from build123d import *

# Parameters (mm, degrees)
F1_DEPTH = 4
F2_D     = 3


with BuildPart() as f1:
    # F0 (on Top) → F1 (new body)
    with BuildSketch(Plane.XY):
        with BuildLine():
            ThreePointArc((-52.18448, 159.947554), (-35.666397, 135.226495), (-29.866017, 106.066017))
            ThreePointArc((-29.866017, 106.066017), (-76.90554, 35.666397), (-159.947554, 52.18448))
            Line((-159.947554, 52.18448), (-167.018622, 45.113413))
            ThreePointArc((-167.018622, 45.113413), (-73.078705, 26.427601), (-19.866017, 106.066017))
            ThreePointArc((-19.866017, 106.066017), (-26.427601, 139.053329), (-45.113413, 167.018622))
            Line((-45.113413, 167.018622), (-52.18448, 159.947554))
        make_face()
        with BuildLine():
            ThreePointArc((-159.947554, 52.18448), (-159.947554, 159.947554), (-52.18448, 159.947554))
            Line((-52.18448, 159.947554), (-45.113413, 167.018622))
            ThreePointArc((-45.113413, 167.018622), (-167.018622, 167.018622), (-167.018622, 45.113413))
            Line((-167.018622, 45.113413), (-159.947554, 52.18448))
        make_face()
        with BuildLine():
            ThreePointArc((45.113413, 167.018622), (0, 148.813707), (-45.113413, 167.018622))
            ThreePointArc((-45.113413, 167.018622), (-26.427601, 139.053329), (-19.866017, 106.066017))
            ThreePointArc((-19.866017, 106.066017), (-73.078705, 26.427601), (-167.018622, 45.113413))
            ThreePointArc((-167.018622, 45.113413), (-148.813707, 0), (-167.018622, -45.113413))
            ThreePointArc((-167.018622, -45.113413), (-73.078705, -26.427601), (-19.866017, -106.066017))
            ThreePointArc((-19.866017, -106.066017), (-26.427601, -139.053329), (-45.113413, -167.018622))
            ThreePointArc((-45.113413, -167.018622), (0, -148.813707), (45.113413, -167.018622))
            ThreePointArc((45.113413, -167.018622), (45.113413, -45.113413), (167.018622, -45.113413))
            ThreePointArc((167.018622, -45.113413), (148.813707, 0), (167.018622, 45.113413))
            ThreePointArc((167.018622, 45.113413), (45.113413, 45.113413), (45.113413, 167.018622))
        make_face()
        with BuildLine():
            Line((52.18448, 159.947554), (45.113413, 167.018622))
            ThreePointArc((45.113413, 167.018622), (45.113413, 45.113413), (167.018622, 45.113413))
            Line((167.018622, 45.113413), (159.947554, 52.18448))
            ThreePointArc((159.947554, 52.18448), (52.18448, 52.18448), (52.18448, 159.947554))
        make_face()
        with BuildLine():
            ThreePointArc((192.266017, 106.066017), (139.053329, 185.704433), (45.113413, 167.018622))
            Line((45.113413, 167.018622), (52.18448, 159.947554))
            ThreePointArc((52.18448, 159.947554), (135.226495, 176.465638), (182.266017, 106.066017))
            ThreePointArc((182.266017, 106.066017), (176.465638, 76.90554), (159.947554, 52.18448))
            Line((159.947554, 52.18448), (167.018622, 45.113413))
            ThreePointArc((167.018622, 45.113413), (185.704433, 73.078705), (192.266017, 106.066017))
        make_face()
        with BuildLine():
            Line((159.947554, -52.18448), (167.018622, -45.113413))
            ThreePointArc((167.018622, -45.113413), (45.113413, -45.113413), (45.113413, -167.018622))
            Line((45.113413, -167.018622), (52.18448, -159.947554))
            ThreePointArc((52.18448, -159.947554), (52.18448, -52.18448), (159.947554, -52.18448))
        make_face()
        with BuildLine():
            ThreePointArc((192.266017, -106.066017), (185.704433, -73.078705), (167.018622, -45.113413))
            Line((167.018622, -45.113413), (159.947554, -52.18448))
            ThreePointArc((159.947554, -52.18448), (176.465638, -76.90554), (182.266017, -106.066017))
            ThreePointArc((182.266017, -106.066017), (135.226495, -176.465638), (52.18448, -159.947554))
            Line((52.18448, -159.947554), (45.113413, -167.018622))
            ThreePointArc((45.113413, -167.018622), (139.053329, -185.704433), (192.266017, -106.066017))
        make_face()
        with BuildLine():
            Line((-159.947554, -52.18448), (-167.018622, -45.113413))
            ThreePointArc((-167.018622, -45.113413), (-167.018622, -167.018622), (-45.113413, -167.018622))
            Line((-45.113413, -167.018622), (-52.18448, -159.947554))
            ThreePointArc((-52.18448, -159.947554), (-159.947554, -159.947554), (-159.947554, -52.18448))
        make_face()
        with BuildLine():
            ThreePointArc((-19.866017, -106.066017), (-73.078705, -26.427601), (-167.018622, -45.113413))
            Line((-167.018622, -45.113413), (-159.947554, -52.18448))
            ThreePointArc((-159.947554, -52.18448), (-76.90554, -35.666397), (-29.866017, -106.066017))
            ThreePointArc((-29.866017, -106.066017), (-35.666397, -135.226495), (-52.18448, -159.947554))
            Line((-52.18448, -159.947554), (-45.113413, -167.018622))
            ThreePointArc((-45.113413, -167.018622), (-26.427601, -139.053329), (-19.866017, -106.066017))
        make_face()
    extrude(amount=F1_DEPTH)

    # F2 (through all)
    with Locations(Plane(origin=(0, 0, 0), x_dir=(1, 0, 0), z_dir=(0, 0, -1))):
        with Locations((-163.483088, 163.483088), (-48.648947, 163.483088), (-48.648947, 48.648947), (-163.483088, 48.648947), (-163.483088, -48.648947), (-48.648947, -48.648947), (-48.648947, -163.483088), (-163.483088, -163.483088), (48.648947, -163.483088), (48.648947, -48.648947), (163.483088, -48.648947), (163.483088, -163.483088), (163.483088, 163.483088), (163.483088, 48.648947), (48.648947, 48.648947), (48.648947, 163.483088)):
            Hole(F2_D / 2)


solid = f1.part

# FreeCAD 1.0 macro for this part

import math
import FreeCAD as App
import Part
import Sketcher
Q = App.Units.Quantity

doc = App.newDocument("Part")
body = doc.addObject("PartDesign::Body", "Body")

sketch1 = body.newObject("Sketcher::SketchObject", "Sketch")
sketch1.AttachmentSupport = (doc.getObject("XY_Plane"), [""])
sketch1.MapMode = "FlatFace"
sketch1.addGeometry([
    Part.ArcOfCircle(Part.Circle(App.Vector(-106.066018, 106.066018, 0), App.Vector(0, 0, 1), 86.2), math.radians(45), math.radians(225)),
    Part.ArcOfCircle(Part.Circle(App.Vector(-213.813707, 0, 0), App.Vector(0, 0, 1), 65), math.radians(-43.951762), math.radians(43.951762)),
    Part.ArcOfCircle(Part.Circle(App.Vector(-106.066018, -106.066018, 0), App.Vector(0, 0, 1), 86.2), math.radians(135), math.radians(315)),
    Part.ArcOfCircle(Part.Circle(App.Vector(0, -213.813707, 0), App.Vector(0, 0, 1), 65), math.radians(46.048238), math.radians(133.951762)),
    Part.ArcOfCircle(Part.Circle(App.Vector(106.066017, -106.066018, 0), App.Vector(0, 0, 1), 86.2), math.radians(-135), math.radians(0)),
    Part.ArcOfCircle(Part.Circle(App.Vector(106.066021, -106.066015, 0), App.Vector(0, 0, 1), 86.199996), math.radians(-0.000001), math.radians(45.000001)),
    Part.ArcOfCircle(Part.Circle(App.Vector(213.813707, 0, 0), App.Vector(0, 0, 1), 65), math.radians(136.048238), math.radians(223.951762)),
    Part.ArcOfCircle(Part.Circle(App.Vector(106.066021, 106.066015, 0), App.Vector(0, 0, 1), 86.199996), math.radians(-45.000001), math.radians(0.000001)),
    Part.ArcOfCircle(Part.Circle(App.Vector(106.066017, 106.066018, 0), App.Vector(0, 0, 1), 86.2), math.radians(0), math.radians(135)),
    Part.ArcOfCircle(Part.Circle(App.Vector(0, 213.813707, 0), App.Vector(0, 0, 1), 65), math.radians(-133.951762), math.radians(-46.048238)),
    Part.ArcOfCircle(Part.Circle(App.Vector(-106.066022, 106.066016, 0), App.Vector(0, 0, 1), 76.200005), math.radians(0.000001), math.radians(44.999998)),
    Part.ArcOfCircle(Part.Circle(App.Vector(-106.066018, 106.066018, 0), App.Vector(0, 0, 1), 76.200001), math.radians(-134.999999), math.radians(-0.000001)),
    Part.ArcOfCircle(Part.Circle(App.Vector(-106.066017, 106.066017, 0), App.Vector(0, 0, 1), 76.2), math.radians(45), math.radians(225)),
    Part.ArcOfCircle(Part.Circle(App.Vector(106.066017, -106.066017, 0), App.Vector(0, 0, 1), 76.2), math.radians(45), math.radians(225)),
    Part.ArcOfCircle(Part.Circle(App.Vector(106.066019, -106.066016, 0), App.Vector(0, 0, 1), 76.199998), math.radians(-0.000001), math.radians(45)),
    Part.ArcOfCircle(Part.Circle(App.Vector(106.066017, -106.066018, 0), App.Vector(0, 0, 1), 76.2), math.radians(-135.000001), math.radians(0.000001)),
    Part.ArcOfCircle(Part.Circle(App.Vector(106.066017, 106.066017, 0), App.Vector(0, 0, 1), 76.2), math.radians(135), math.radians(315)),
    Part.ArcOfCircle(Part.Circle(App.Vector(106.066017, 106.066018, 0), App.Vector(0, 0, 1), 76.2), math.radians(-0.000001), math.radians(135.000001)),
    Part.ArcOfCircle(Part.Circle(App.Vector(106.066019, 106.066016, 0), App.Vector(0, 0, 1), 76.199998), math.radians(-45), math.radians(0.000001)),
    Part.ArcOfCircle(Part.Circle(App.Vector(-106.066018, -106.066018, 0), App.Vector(0, 0, 1), 76.200001), math.radians(0.000001), math.radians(134.999999)),
    Part.ArcOfCircle(Part.Circle(App.Vector(-106.066022, -106.066016, 0), App.Vector(0, 0, 1), 76.200005), math.radians(-44.999998), math.radians(-0.000001)),
    Part.ArcOfCircle(Part.Circle(App.Vector(-106.066017, -106.066017, 0), App.Vector(0, 0, 1), 76.2), math.radians(135), math.radians(315)),
], False)
sketch1.addConstraint([
    Sketcher.Constraint("Coincident", 0, 2, 1, 2),
    Sketcher.Constraint("Coincident", 1, 1, 2, 1),
    Sketcher.Constraint("Coincident", 2, 2, 3, 2),
    Sketcher.Constraint("Coincident", 3, 1, 4, 1),
    Sketcher.Constraint("Tangent", 4, 2, 5, 1),
    Sketcher.Constraint("Coincident", 5, 2, 6, 2),
    Sketcher.Constraint("Coincident", 6, 1, 7, 1),
    Sketcher.Constraint("Tangent", 7, 2, 8, 1),
    Sketcher.Constraint("Coincident", 8, 2, 9, 2),
    Sketcher.Constraint("Coincident", 9, 1, 0, 1),
    Sketcher.Constraint("Tangent", 10, 1, 11, 2),
    Sketcher.Constraint("Tangent", 11, 1, 12, 2),
    Sketcher.Constraint("Tangent", 12, 1, 10, 2),
    Sketcher.Constraint("Tangent", 13, 1, 14, 2),
    Sketcher.Constraint("Tangent", 14, 1, 15, 2),
    Sketcher.Constraint("Tangent", 15, 1, 13, 2),
    Sketcher.Constraint("Tangent", 16, 1, 17, 2),
    Sketcher.Constraint("Tangent", 17, 1, 18, 2),
    Sketcher.Constraint("Tangent", 18, 1, 16, 2),
    Sketcher.Constraint("Tangent", 19, 1, 20, 2),
    Sketcher.Constraint("Tangent", 20, 1, 21, 2),
    Sketcher.Constraint("Tangent", 21, 1, 19, 2),
    Sketcher.Constraint("Coincident", 10, 3, 0, 3),
    Sketcher.Constraint("Coincident", 13, 3, 4, 3),
    Sketcher.Constraint("Coincident", 16, 3, 7, 3),
    Sketcher.Constraint("Coincident", 19, 3, 2, 3),
    Sketcher.Constraint("Equal", 0, 2),
    Sketcher.Constraint("Equal", 1, 3),
    Sketcher.Constraint("Equal", 2, 4),
    Sketcher.Constraint("Equal", 3, 6),
    Sketcher.Constraint("Equal", 5, 7),
    Sketcher.Constraint("Equal", 4, 8),
    Sketcher.Constraint("Equal", 6, 9),
    Sketcher.Constraint("Equal", 12, 13),
    Sketcher.Constraint("Equal", 15, 16),
    Sketcher.Constraint("Equal", 17, 19),
    Sketcher.Constraint("Symmetric", 0, 3, 4, 3, -1, 1),
    Sketcher.Constraint("Symmetric", 1, 3, 6, 3, -1, 1),
    Sketcher.Constraint("Symmetric", 2, 3, 7, 3, -1, 1),
    Sketcher.Constraint("Symmetric", 3, 3, 9, 3, -1, 1),
    Sketcher.Constraint("Symmetric", 2, 3, 4, 3, -2),
    Sketcher.Constraint("Symmetric", 1, 1, 5, 2, -2),
    Sketcher.Constraint("PointOnObject", 3, 3, -2),
    Sketcher.Constraint("Horizontal", 21, 3, 4, 2),
    Sketcher.Constraint("Horizontal", 18, 3, 7, 2),
    Sketcher.Constraint("Horizontal", 7, 2, 10, 1),
    Sketcher.Constraint("Horizontal", 4, 2, 14, 1),
    Sketcher.Constraint("Horizontal", 12, 1, 16, 1),
    Sketcher.Constraint("Horizontal", 10, 1, 17, 1),
    Sketcher.Constraint("Horizontal", 11, 1, 18, 1),
    Sketcher.Constraint("Horizontal", 14, 1, 19, 1),
    Sketcher.Constraint("Horizontal", 15, 1, 20, 1),
    Sketcher.Constraint("Horizontal", 13, 1, 21, 1),
    Sketcher.Constraint("Vertical", 15, 1, 16, 1),
    Sketcher.Constraint("Vertical", 13, 1, 18, 1),
    Sketcher.Constraint("Radius", 1, Q("65 mm")),
    Sketcher.Constraint("Radius", 0, Q("86.2 mm")),
    Sketcher.Constraint("Radius", 11, Q("76.200001 mm")),
    Sketcher.Constraint("DistanceX", 0, 2, 10, 3, Q("60.9526 mm")),
    Sketcher.Constraint("DistanceX", -1, 1, 5, 3, Q("106.066021 mm")),
    Sketcher.Constraint("DistanceY", -1, 1, 11, 3, Q("106.066018 mm")),
    Sketcher.Constraint("DistanceY", 3, 1, -1, 1, Q("167.018622 mm")),
    Sketcher.Constraint("DistanceY", -1, 1, 11, 1, Q("52.18448 mm")),
    Sketcher.Constraint("DistanceX", 12, 1, -1, 1, Q("52.18448 mm")),
])
pad1 = body.newObject("PartDesign::Pad", "Pad")
pad1.Profile = sketch1
pad1.Length = 4

sketch2 = body.newObject("Sketcher::SketchObject", "Sketch001")
sketch2.AttachmentSupport = (doc.getObject("XY_Plane"), [""])
sketch2.MapMode = "FlatFace"
sketch2.addGeometry([
    Part.Circle(App.Vector(-163.483088, -163.483088, 0), App.Vector(0, 0, 1), 1.5),
    Part.Circle(App.Vector(-48.648947, -163.483088, 0), App.Vector(0, 0, 1), 1.5),
    Part.Circle(App.Vector(-48.648947, -48.648947, 0), App.Vector(0, 0, 1), 1.5),
    Part.Circle(App.Vector(-163.483088, -48.648947, 0), App.Vector(0, 0, 1), 1.5),
    Part.Circle(App.Vector(-163.483088, 48.648947, 0), App.Vector(0, 0, 1), 1.5),
    Part.Circle(App.Vector(-48.648947, 48.648947, 0), App.Vector(0, 0, 1), 1.5),
    Part.Circle(App.Vector(-48.648947, 163.483088, 0), App.Vector(0, 0, 1), 1.5),
    Part.Circle(App.Vector(-163.483088, 163.483088, 0), App.Vector(0, 0, 1), 1.5),
    Part.Circle(App.Vector(48.648947, 163.483088, 0), App.Vector(0, 0, 1), 1.5),
    Part.Circle(App.Vector(48.648947, 48.648947, 0), App.Vector(0, 0, 1), 1.5),
    Part.Circle(App.Vector(163.483088, 48.648947, 0), App.Vector(0, 0, 1), 1.5),
    Part.Circle(App.Vector(163.483088, 163.483088, 0), App.Vector(0, 0, 1), 1.5),
    Part.Circle(App.Vector(163.483088, -163.483088, 0), App.Vector(0, 0, 1), 1.5),
    Part.Circle(App.Vector(163.483088, -48.648947, 0), App.Vector(0, 0, 1), 1.5),
    Part.Circle(App.Vector(48.648947, -48.648947, 0), App.Vector(0, 0, 1), 1.5),
    Part.Circle(App.Vector(48.648947, -163.483088, 0), App.Vector(0, 0, 1), 1.5),
], False)
sketch2.addConstraint([
    Sketcher.Constraint("Equal", 0, 1),
    Sketcher.Constraint("Equal", 1, 2),
    Sketcher.Constraint("Equal", 2, 3),
    Sketcher.Constraint("Equal", 3, 4),
    Sketcher.Constraint("Equal", 4, 5),
    Sketcher.Constraint("Equal", 5, 6),
    Sketcher.Constraint("Equal", 6, 7),
    Sketcher.Constraint("Equal", 7, 8),
    Sketcher.Constraint("Equal", 8, 9),
    Sketcher.Constraint("Equal", 9, 10),
    Sketcher.Constraint("Equal", 10, 11),
    Sketcher.Constraint("Equal", 11, 12),
    Sketcher.Constraint("Equal", 12, 13),
    Sketcher.Constraint("Equal", 13, 14),
    Sketcher.Constraint("Equal", 14, 15),
    Sketcher.Constraint("Symmetric", 1, 3, 8, 3, -1, 1),
    Sketcher.Constraint("Symmetric", 2, 3, 9, 3, -1, 1),
    Sketcher.Constraint("Symmetric", 3, 3, 10, 3, -1, 1),
    Sketcher.Constraint("Symmetric", 0, 3, 11, 3, -1, 1),
    Sketcher.Constraint("Symmetric", 7, 3, 12, 3, -1, 1),
    Sketcher.Constraint("Symmetric", 4, 3, 13, 3, -1, 1),
    Sketcher.Constraint("Symmetric", 5, 3, 14, 3, -1, 1),
    Sketcher.Constraint("Symmetric", 6, 3, 15, 3, -1, 1),
    Sketcher.Constraint("Symmetric", 6, 3, 8, 3, -2),
    Sketcher.Constraint("Symmetric", 5, 3, 9, 3, -2),
    Sketcher.Constraint("Symmetric", 4, 3, 10, 3, -2),
    Sketcher.Constraint("Symmetric", 7, 3, 11, 3, -2),
    Sketcher.Constraint("Horizontal", 0, 3, 1, 3),
    Sketcher.Constraint("Horizontal", 2, 3, 3, 3),
    Sketcher.Constraint("Vertical", 1, 3, 2, 3),
    Sketcher.Constraint("Vertical", 0, 3, 3, 3),
    Sketcher.Constraint("Diameter", 0, Q("3 mm")),
    Sketcher.Constraint("DistanceX", 0, 3, -1, 1, Q("163.483088 mm")),
    Sketcher.Constraint("DistanceY", 0, 3, -1, 1, Q("163.483088 mm")),
    Sketcher.Constraint("DistanceX", 0, 3, 1, 3, Q("114.834141 mm")),
    Sketcher.Constraint("DistanceY", 1, 3, 2, 3, Q("114.834141 mm")),
])
doc.recompute()
hole = body.newObject("PartDesign::Hole", "Hole")
hole.Profile = sketch2
hole.ThreadType = "None"
hole.Diameter = 3
hole.DepthType = "ThroughAll"
hole.Reversed = True

doc.recompute()
